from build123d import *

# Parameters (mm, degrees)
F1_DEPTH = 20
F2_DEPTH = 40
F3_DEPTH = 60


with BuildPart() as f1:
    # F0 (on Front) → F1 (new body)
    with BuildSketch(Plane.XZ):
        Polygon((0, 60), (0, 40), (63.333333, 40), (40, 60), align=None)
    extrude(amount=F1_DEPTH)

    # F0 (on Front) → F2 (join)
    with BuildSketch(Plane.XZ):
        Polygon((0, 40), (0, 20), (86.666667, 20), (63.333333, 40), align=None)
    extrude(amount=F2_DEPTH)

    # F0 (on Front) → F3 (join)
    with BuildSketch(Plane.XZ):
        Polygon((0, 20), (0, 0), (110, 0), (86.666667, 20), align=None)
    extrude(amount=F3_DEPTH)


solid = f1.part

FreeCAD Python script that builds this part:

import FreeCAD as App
import Part
import Sketcher
Q = App.Units.Quantity

doc = App.newDocument("Part")
params = doc.addObject("Spreadsheet::Sheet", "Params")
for row, (alias, value) in enumerate([
    ("sketch1_width", "40 mm"),
    ("sketch1_height", "20 mm"),
    ("pad1_length", "20 mm"),
    ("sketch2_height", "20 mm"),
    ("pad2_length", "40 mm"),
    ("sketch3_width", "110 mm"),
    ("sketch3_height", "20 mm"),
    ("pad3_length", "60 mm"),
], start=1):
    params.set(f"A{row}", alias)
    params.set(f"B{row}", "=" + value)
    params.setAlias(f"B{row}", alias)

body = doc.addObject("PartDesign::Body", "Body")

sketch1 = doc.addObject("Sketcher::SketchObject", "Sketch")
body.addObject(sketch1)
sketch1.AttachmentSupport = (doc.XZ_Plane, [""])
sketch1.MapMode = "FlatFace"
sketch1.addGeometry([
    Part.LineSegment(App.Vector(0, 60, 0), App.Vector(0, 40, 0)),
    Part.LineSegment(App.Vector(0, 40, 0), App.Vector(63, 40, 0)),
    Part.LineSegment(App.Vector(63, 40, 0), App.Vector(40, 60, 0)),
    Part.LineSegment(App.Vector(40, 60, 0), App.Vector(0, 60, 0)),
], False)
sketch1.addConstraint([
    Sketcher.Constraint("Coincident", 0, 2, 1, 1),
    Sketcher.Constraint("Coincident", 1, 2, 2, 1),
    Sketcher.Constraint("Coincident", 2, 2, 3, 1),
    Sketcher.Constraint("Coincident", 3, 2, 0, 1),
    Sketcher.Constraint("Vertical", 0),
    Sketcher.Constraint("Horizontal", 1),
    Sketcher.Constraint("Horizontal", 3),
    Sketcher.Constraint("PointOnObject", 0, 2, -2),
    Sketcher.Constraint("DistanceX", 3, 2, 3, 1, Q("40 mm")),
    Sketcher.Constraint("DistanceY", 0, 2, 0, 1, Q("20 mm")),
    Sketcher.Constraint("DistanceY", -1, 1, 0, 2, Q("40 mm")),
    Sketcher.Constraint("DistanceX", 1, 1, 1, 2, Q("63.333333 mm")),
])
sketch1.setExpression("Constraints[8]", "Params.sketch1_width")
sketch1.setExpression("Constraints[9]", "Params.sketch1_height")
pad1 = doc.addObject("PartDesign::Pad", "Pad")
body.addObject(pad1)
pad1.Profile = sketch1
pad1.setExpression("Length", "Params.pad1_length")

sketch2 = doc.addObject("Sketcher::SketchObject", "Sketch001")
body.addObject(sketch2)
sketch2.AttachmentSupport = (doc.XZ_Plane, [""])
sketch2.MapMode = "FlatFace"
sketch2.addGeometry([
    Part.LineSegment(App.Vector(0, 40, 0), App.Vector(0, 20, 0)),
    Part.LineSegment(App.Vector(0, 20, 0), App.Vector(87, 20, 0)),
    Part.LineSegment(App.Vector(87, 20, 0), App.Vector(63, 40, 0)),
    Part.LineSegment(App.Vector(63, 40, 0), App.Vector(0, 40, 0)),
], False)
sketch2.addConstraint([
    Sketcher.Constraint("Coincident", 0, 2, 1, 1),
    Sketcher.Constraint("Coincident", 1, 2, 2, 1),
    Sketcher.Constraint("Coincident", 2, 2, 3, 1),
    Sketcher.Constraint("Coincident", 3, 2, 0, 1),
    Sketcher.Constraint("Vertical", 0),
    Sketcher.Constraint("Horizontal", 1),
    Sketcher.Constraint("Horizontal", 3),
    Sketcher.Constraint("PointOnObject", 0, 2, -2),
    Sketcher.Constraint("DistanceY", 0, 2, 0, 1, Q("20 mm")),
    Sketcher.Constraint("DistanceY", -1, 1, 0, 2, Q("20 mm")),
    Sketcher.Constraint("DistanceX", 1, 1, 1, 2, Q("86.666667 mm")),
    Sketcher.Constraint("DistanceX", 3, 2, 3, 1, Q("63.333333 mm")),
])
sketch2.setExpression("Constraints[8]", "Params.sketch2_height")
pad2 = doc.addObject("PartDesign::Pad", "Pad001")
body.addObject(pad2)
pad2.Profile = sketch2
pad2.setExpression("Length", "Params.pad2_length")

sketch3 = doc.addObject("Sketcher::SketchObject", "Sketch002")
body.addObject(sketch3)
sketch3.AttachmentSupport = (doc.XZ_Plane, [""])
sketch3.MapMode = "FlatFace"
sketch3.addGeometry([
    Part.LineSegment(App.Vector(0, 20, 0), App.Vector(0, 0, 0)),
    Part.LineSegment(App.Vector(0, 0, 0), App.Vector(110, 0, 0)),
    Part.LineSegment(App.Vector(110, 0, 0), App.Vector(87, 20, 0)),
    Part.LineSegment(App.Vector(87, 20, 0), App.Vector(0, 20, 0)),
], False)
sketch3.addConstraint([
    Sketcher.Constraint("Coincident", 0, 2, 1, 1),
    Sketcher.Constraint("Coincident", 1, 2, 2, 1),
    Sketcher.Constraint("Coincident", 2, 2, 3, 1),
    Sketcher.Constraint("Coincident", 3, 2, 0, 1),
    Sketcher.Constraint("Vertical", 0),
    Sketcher.Constraint("Horizontal", 1),
    Sketcher.Constraint("Horizontal", 3),
    Sketcher.Constraint("Coincident", 0, 2, -1, 1),
    Sketcher.Constraint("DistanceX", 1, 1, 1, 2, Q("110 mm")),
    Sketcher.Constraint("DistanceY", 0, 2, 0, 1, Q("20 mm")),
    Sketcher.Constraint("DistanceX", 3, 2, 3, 1, Q("86.666667 mm")),
])
sketch3.setExpression("Constraints[8]", "Params.sketch3_width")
sketch3.setExpression("Constraints[9]", "Params.sketch3_height")
pad3 = doc.addObject("PartDesign::Pad", "Pad002")
body.addObject(pad3)
pad3.Profile = sketch3
pad3.setExpression("Length", "Params.pad3_length")

doc.recompute()
